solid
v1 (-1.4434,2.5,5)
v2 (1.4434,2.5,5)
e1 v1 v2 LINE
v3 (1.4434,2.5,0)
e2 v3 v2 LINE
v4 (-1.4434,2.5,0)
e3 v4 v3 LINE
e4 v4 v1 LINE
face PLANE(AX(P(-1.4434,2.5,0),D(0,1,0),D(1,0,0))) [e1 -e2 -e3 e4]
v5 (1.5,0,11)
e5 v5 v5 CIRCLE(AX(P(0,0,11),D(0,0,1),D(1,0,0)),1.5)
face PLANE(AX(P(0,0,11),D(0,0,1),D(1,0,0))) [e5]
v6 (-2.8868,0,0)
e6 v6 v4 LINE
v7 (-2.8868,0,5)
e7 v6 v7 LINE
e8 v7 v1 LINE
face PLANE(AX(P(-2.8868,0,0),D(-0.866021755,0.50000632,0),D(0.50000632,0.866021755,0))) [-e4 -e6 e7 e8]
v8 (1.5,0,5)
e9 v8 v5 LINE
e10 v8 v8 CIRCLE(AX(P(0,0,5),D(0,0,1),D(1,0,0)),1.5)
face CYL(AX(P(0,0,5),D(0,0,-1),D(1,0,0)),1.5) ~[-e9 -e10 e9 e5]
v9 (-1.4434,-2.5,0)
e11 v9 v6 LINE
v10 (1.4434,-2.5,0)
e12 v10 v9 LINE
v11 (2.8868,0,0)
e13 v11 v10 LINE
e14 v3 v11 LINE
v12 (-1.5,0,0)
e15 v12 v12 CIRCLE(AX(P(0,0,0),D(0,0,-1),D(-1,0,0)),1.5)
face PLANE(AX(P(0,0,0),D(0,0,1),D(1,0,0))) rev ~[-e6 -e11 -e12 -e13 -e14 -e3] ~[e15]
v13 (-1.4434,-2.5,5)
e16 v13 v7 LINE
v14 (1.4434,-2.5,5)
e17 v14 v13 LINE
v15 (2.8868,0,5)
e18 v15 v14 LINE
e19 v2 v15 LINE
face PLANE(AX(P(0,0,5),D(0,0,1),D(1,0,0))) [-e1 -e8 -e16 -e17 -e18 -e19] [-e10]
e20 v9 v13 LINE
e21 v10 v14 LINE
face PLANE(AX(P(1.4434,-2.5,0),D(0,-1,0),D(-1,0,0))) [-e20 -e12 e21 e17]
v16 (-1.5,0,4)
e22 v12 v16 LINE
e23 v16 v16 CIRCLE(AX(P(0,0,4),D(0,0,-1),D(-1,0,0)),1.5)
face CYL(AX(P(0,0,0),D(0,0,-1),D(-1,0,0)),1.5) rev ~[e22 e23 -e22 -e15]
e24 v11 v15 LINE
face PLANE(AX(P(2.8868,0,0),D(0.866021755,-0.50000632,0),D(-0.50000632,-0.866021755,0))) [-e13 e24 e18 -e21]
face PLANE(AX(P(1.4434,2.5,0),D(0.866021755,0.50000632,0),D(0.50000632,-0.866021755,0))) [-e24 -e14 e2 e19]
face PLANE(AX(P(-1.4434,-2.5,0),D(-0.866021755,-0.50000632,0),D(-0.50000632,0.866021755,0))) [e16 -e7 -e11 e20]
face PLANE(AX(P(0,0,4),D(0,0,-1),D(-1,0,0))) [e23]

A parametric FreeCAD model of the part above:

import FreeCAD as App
import Part
import Sketcher
Q = App.Units.Quantity

doc = App.newDocument("Part")
body = doc.addObject("PartDesign::Body", "Body")

# Sketch on XY plane
sketch1 = doc.addObject("Sketcher::SketchObject", "Sketch")
body.addObject(sketch1)
sketch1.AttachmentSupport = (doc.XY_Plane, [""])
sketch1.MapMode = "FlatFace"
sketch1.addGeometry(Part.LineSegment(App.Vector(1.4, -2.5, 0), App.Vector(2.9, 0, 0)), False)
sketch1.addGeometry(Part.LineSegment(App.Vector(2.9, 0, 0), App.Vector(1.4, 2.5, 0)), False)
sketch1.addGeometry(Part.LineSegment(App.Vector(1.4, 2.5, 0), App.Vector(-1.4, 2.5, 0)), False)
sketch1.addGeometry(Part.LineSegment(App.Vector(-1.4, 2.5, 0), App.Vector(-2.9, 0, 0)), False)
sketch1.addGeometry(Part.LineSegment(App.Vector(-2.9, 0, 0), App.Vector(-1.4, -2.5, 0)), False)
sketch1.addGeometry(Part.LineSegment(App.Vector(-1.4, -2.5, 0), App.Vector(1.4, -2.5, 0)), False)
sketch1.addConstraint(Sketcher.Constraint("Coincident", 0, 2, 1, 1))
sketch1.addConstraint(Sketcher.Constraint("Coincident", 1, 2, 2, 1))
sketch1.addConstraint(Sketcher.Constraint("Coincident", 2, 2, 3, 1))
sketch1.addConstraint(Sketcher.Constraint("Coincident", 3, 2, 4, 1))
sketch1.addConstraint(Sketcher.Constraint("Coincident", 4, 2, 5, 1))
sketch1.addConstraint(Sketcher.Constraint("Coincident", 5, 2, 0, 1))
sketch1.addConstraint(Sketcher.Constraint("Horizontal", 2))
sketch1.addConstraint(Sketcher.Constraint("Horizontal", 5))
sketch1.addConstraint(Sketcher.Constraint("Symmetric", 0, 2, 3, 2, -1, 1))
sketch1.addConstraint(Sketcher.Constraint("Symmetric", 1, 2, 4, 2, -1, 1))
sketch1.addConstraint(Sketcher.Constraint("PointOnObject", 0, 2, -1))
sketch1.addConstraint(Sketcher.Constraint("Parallel", 0, 3))
sketch1.addConstraint(Sketcher.Constraint("Vertical", 2, 2, 4, 2))
sketch1.addConstraint(Sketcher.Constraint("DistanceY", 4, 2, 2, 2, 5.0))
sketch1.addConstraint(Sketcher.Constraint("Angle", 0, Q("59.9996 deg")))
sketch1.addConstraint(Sketcher.Constraint("DistanceX", 2, 2, 2, 1, 2.8868))
pad1 = doc.addObject("PartDesign::Pad", "Pad")
body.addObject(pad1)
pad1.Profile = sketch1
pad1.Length = 5

# Sketch on XY plane
sketch2 = doc.addObject("Sketcher::SketchObject", "Sketch001")
body.addObject(sketch2)
sketch2.AttachmentSupport = (doc.XY_Plane, [""])
sketch2.MapMode = "FlatFace"
sketch2.AttachmentOffset = App.Placement(App.Vector(0, 0, 5), App.Rotation())
sketch2.addGeometry(Part.Circle(App.Vector(0, 0, 0), App.Vector(0, 0, 1), 1.5), False)
sketch2.addConstraint(Sketcher.Constraint("Coincident", 0, 3, -1, 1))
sketch2.addConstraint(Sketcher.Constraint("Diameter", 0, 3.0))
pad2 = doc.addObject("PartDesign::Pad", "Pad001")
body.addObject(pad2)
pad2.Profile = sketch2
pad2.Length = 6

# Sketch on XY plane
sketch3 = doc.addObject("Sketcher::SketchObject", "Sketch002")
body.addObject(sketch3)
sketch3.AttachmentSupport = (doc.XY_Plane, [""])
sketch3.MapMode = "FlatFace"
sketch3.addGeometry(Part.Circle(App.Vector(0, 0, 0), App.Vector(0, 0, 1), 1.5), False)
sketch3.addConstraint(Sketcher.Constraint("Coincident", 0, 3, -1, 1))
sketch3.addConstraint(Sketcher.Constraint("Diameter", 0, 3.0))
pocket1 = doc.addObject("PartDesign::Pocket", "Pocket")
body.addObject(pocket1)
pocket1.Profile = sketch3
pocket1.Length = 4
pocket1.Reversed = True

doc.recompute()
